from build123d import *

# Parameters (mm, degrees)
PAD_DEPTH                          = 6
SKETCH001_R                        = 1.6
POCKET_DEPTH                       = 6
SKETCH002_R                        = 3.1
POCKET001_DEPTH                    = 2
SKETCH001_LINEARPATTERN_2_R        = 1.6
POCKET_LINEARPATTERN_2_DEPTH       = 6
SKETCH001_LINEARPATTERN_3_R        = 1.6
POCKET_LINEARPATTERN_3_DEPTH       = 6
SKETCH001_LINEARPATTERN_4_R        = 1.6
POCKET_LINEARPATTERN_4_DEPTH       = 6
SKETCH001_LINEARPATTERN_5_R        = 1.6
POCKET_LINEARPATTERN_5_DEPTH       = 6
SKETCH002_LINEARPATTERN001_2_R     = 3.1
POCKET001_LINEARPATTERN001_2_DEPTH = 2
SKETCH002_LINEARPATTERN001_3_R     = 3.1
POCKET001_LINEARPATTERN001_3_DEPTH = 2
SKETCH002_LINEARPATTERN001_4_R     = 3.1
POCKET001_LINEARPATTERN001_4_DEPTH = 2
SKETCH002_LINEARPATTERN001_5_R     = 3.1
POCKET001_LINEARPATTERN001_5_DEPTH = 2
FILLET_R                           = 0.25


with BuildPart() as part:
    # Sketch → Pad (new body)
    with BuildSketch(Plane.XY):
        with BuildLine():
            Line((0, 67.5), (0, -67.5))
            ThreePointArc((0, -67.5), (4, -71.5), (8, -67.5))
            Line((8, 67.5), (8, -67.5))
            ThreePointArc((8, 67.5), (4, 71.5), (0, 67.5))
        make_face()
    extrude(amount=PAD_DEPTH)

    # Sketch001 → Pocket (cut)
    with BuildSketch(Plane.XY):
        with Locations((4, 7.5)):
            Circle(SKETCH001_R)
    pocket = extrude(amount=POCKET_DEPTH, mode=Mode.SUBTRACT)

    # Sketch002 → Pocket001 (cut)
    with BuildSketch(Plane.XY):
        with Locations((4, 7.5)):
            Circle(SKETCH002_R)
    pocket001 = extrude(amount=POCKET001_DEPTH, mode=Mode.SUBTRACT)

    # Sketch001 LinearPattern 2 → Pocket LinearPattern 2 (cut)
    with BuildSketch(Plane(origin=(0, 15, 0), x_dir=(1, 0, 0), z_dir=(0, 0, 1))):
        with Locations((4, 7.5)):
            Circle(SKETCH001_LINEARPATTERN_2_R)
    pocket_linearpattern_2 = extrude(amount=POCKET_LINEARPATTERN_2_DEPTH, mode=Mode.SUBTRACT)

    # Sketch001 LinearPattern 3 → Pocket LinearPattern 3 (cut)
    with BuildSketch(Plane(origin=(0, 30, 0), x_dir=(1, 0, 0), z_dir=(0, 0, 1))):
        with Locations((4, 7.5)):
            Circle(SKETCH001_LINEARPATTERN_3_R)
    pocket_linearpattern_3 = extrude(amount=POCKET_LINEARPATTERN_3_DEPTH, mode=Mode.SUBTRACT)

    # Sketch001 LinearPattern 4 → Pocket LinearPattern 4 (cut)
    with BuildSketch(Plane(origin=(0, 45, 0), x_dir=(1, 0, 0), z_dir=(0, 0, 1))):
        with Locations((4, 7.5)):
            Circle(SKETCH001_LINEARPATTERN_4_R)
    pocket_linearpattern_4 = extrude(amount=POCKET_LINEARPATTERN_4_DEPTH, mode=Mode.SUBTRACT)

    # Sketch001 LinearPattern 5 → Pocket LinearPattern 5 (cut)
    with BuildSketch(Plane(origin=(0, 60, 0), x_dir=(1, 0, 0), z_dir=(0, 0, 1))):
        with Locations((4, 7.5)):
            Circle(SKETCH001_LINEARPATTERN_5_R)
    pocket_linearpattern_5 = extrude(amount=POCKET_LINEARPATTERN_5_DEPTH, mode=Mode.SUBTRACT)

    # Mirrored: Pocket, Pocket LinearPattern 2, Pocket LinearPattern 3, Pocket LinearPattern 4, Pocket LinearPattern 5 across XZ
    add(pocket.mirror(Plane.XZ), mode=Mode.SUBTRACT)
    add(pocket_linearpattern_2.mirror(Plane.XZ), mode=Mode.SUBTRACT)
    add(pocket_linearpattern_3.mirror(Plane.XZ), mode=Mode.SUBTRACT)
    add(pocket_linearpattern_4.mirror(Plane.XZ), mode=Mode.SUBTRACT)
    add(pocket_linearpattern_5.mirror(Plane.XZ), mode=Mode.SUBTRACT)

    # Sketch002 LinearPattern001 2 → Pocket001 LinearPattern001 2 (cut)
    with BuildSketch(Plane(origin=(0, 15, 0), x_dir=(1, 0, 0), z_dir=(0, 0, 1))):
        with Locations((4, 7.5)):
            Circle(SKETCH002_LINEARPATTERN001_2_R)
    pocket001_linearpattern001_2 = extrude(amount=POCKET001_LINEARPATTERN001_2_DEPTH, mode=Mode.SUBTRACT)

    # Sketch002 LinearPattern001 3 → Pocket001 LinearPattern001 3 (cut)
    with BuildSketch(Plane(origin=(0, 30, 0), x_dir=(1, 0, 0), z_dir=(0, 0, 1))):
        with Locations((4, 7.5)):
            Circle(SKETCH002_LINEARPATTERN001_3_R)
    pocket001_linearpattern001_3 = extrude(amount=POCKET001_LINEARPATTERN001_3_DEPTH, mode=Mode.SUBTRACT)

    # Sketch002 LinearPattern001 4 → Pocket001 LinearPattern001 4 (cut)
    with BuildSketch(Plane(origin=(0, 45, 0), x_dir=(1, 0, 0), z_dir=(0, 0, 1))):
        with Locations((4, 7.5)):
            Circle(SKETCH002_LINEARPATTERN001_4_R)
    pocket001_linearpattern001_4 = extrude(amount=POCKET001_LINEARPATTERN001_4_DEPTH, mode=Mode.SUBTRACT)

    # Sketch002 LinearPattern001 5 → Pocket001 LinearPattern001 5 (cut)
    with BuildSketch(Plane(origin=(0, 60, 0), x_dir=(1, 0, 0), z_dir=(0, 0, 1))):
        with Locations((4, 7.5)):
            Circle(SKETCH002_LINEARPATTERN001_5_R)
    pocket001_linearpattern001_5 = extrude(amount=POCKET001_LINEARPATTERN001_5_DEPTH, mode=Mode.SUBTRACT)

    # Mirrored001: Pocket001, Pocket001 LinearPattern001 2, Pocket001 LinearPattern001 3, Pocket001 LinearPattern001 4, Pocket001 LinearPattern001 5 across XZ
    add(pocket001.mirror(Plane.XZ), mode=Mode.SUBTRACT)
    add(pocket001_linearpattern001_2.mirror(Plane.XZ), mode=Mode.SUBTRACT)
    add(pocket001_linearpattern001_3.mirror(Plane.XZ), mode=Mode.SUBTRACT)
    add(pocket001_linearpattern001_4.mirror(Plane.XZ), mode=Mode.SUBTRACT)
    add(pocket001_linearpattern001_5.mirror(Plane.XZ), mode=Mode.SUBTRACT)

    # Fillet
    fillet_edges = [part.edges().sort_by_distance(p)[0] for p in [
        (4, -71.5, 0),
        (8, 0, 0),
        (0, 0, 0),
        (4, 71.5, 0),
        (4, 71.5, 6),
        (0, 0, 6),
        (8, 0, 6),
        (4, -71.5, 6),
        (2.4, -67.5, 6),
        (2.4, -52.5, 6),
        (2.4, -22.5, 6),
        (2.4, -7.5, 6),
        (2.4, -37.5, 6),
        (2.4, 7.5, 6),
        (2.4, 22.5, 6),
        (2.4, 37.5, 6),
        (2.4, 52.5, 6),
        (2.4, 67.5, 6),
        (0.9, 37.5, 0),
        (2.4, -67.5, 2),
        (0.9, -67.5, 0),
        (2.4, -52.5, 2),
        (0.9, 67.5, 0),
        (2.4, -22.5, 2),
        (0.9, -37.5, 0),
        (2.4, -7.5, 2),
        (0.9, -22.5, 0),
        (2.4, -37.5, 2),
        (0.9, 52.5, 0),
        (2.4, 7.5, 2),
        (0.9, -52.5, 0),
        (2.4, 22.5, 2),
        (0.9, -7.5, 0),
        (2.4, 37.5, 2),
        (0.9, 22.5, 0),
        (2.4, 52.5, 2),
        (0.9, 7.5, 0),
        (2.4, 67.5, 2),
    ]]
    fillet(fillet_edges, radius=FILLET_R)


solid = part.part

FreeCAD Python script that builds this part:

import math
import FreeCAD as App
import Part
import Sketcher
from FreeCAD import Vector
Q = App.Units.Quantity


def edges_at(feature, points):
    """Names of the edges that pass closest to the given points."""
    edges = feature.Shape.Edges
    near = lambda p: min(range(len(edges)), key=lambda i: edges[i].distToShape(Part.Vertex(*p))[0])
    return sorted({f"Edge{near(p) + 1}" for p in points})

doc = App.newDocument("Part")
body = doc.addObject("PartDesign::Body", "Body")

# Sketch on XY plane
sketch1 = body.newObject("Sketcher::SketchObject", "Sketch")
sketch1.AttachmentSupport = (doc.getObject("XY_Plane"), [""])
sketch1.MapMode = "FlatFace"
sketch1.addGeometry(Part.LineSegment(Vector(0, 67.5, 0), Vector(0, -67.5, 0)), False)
sketch1.addGeometry(Part.ArcOfCircle(Part.Circle(Vector(4, -67.5, 0), Vector(0, 0, 1), 4), math.radians(180), math.radians(360)), False)
sketch1.addGeometry(Part.LineSegment(Vector(8, -67.5, 0), Vector(8, 67.5, 0)), False)
sketch1.addGeometry(Part.ArcOfCircle(Part.Circle(Vector(4, 67.5, 0), Vector(0, 0, 1), 4), math.radians(0), math.radians(180)), False)
sketch1.addConstraint(Sketcher.Constraint("Tangent", 0, 2, 1, 1))
sketch1.addConstraint(Sketcher.Constraint("Tangent", 1, 2, 2, 1))
sketch1.addConstraint(Sketcher.Constraint("Tangent", 2, 2, 3, 1))
sketch1.addConstraint(Sketcher.Constraint("Tangent", 3, 2, 0, 1))
sketch1.addConstraint(Sketcher.Constraint("Vertical", 0))
sketch1.addConstraint(Sketcher.Constraint("Vertical", 2))
sketch1.addConstraint(Sketcher.Constraint("Symmetric", 0, 2, 3, 2, -1, 1))
sketch1.addConstraint(Sketcher.Constraint("Radius", 1, Q("4 mm")))
sketch1.addConstraint(Sketcher.Constraint("DistanceY", 0, 2, 0, 1, Q("135 mm")))
pad1 = body.newObject("PartDesign::Pad", "Pad")
pad1.Profile = sketch1
pad1.Length = 6

# Sketch on XY plane
sketch2 = body.newObject("Sketcher::SketchObject", "Sketch001")
sketch2.AttachmentSupport = (doc.getObject("XY_Plane"), [""])
sketch2.MapMode = "FlatFace"
sketch2.addGeometry(Part.Circle(Vector(4, 7.5, 0), Vector(0, 0, 1), 1.6), False)
sketch2.addConstraint(Sketcher.Constraint("Diameter", 0, Q("3.2 mm")))
sketch2.addConstraint(Sketcher.Constraint("DistanceX", -1, 1, 0, 3, Q("4 mm")))
sketch2.addConstraint(Sketcher.Constraint("DistanceY", -1, 1, 0, 3, Q("7.5 mm")))
pocket1 = body.newObject("PartDesign::Pocket", "Pocket")
pocket1.Profile = sketch2
pocket1.Length = 6
pocket1.Reversed = True

# Sketch on XY plane
sketch3 = body.newObject("Sketcher::SketchObject", "Sketch002")
sketch3.AttachmentSupport = (doc.getObject("XY_Plane"), [""])
sketch3.MapMode = "FlatFace"
sketch3.addGeometry(Part.Circle(Vector(4, 7.5, 0), Vector(0, 0, 1), 3.1), False)
sketch3.addConstraint(Sketcher.Constraint("Diameter", 0, Q("6.2 mm")))
sketch3.addConstraint(Sketcher.Constraint("DistanceX", -1, 1, 0, 3, Q("4 mm")))
sketch3.addConstraint(Sketcher.Constraint("DistanceY", -1, 1, 0, 3, Q("7.5 mm")))
pocket2 = body.newObject("PartDesign::Pocket", "Pocket001")
pocket2.Profile = sketch3
pocket2.Length = 2
pocket2.Reversed = True

# Sketch on XY plane
sketch4 = body.newObject("Sketcher::SketchObject", "Sketch003")
sketch4.AttachmentSupport = (doc.getObject("XY_Plane"), [""])
sketch4.MapMode = "FlatFace"
sketch4.addGeometry(Part.Circle(Vector(4, 22.5, 0), Vector(0, 0, 1), 1.6), False)
sketch4.addConstraint(Sketcher.Constraint("Diameter", 0, Q("3.2 mm")))
sketch4.addConstraint(Sketcher.Constraint("DistanceX", -1, 1, 0, 3, Q("4 mm")))
sketch4.addConstraint(Sketcher.Constraint("DistanceY", -1, 1, 0, 3, Q("22.5 mm")))
pocket3 = body.newObject("PartDesign::Pocket", "Pocket002")
pocket3.Profile = sketch4
pocket3.Length = 6
pocket3.Reversed = True

# Sketch on XY plane
sketch5 = body.newObject("Sketcher::SketchObject", "Sketch004")
sketch5.AttachmentSupport = (doc.getObject("XY_Plane"), [""])
sketch5.MapMode = "FlatFace"
sketch5.addGeometry(Part.Circle(Vector(4, 37.5, 0), Vector(0, 0, 1), 1.6), False)
sketch5.addConstraint(Sketcher.Constraint("Diameter", 0, Q("3.2 mm")))
sketch5.addConstraint(Sketcher.Constraint("DistanceX", -1, 1, 0, 3, Q("4 mm")))
sketch5.addConstraint(Sketcher.Constraint("DistanceY", -1, 1, 0, 3, Q("37.5 mm")))
pocket4 = body.newObject("PartDesign::Pocket", "Pocket003")
pocket4.Profile = sketch5
pocket4.Length = 6
pocket4.Reversed = True

# Sketch on XY plane
sketch6 = body.newObject("Sketcher::SketchObject", "Sketch005")
sketch6.AttachmentSupport = (doc.getObject("XY_Plane"), [""])
sketch6.MapMode = "FlatFace"
sketch6.addGeometry(Part.Circle(Vector(4, 52.5, 0), Vector(0, 0, 1), 1.6), False)
sketch6.addConstraint(Sketcher.Constraint("Diameter", 0, Q("3.2 mm")))
sketch6.addConstraint(Sketcher.Constraint("DistanceX", -1, 1, 0, 3, Q("4 mm")))
sketch6.addConstraint(Sketcher.Constraint("DistanceY", -1, 1, 0, 3, Q("52.5 mm")))
pocket5 = body.newObject("PartDesign::Pocket", "Pocket004")
pocket5.Profile = sketch6
pocket5.Length = 6
pocket5.Reversed = True

# Sketch on XY plane
sketch7 = body.newObject("Sketcher::SketchObject", "Sketch006")
sketch7.AttachmentSupport = (doc.getObject("XY_Plane"), [""])
sketch7.MapMode = "FlatFace"
sketch7.addGeometry(Part.Circle(Vector(4, 67.5, 0), Vector(0, 0, 1), 1.6), False)
sketch7.addConstraint(Sketcher.Constraint("Diameter", 0, Q("3.2 mm")))
sketch7.addConstraint(Sketcher.Constraint("DistanceX", -1, 1, 0, 3, Q("4 mm")))
sketch7.addConstraint(Sketcher.Constraint("DistanceY", -1, 1, 0, 3, Q("67.5 mm")))
pocket6 = body.newObject("PartDesign::Pocket", "Pocket005")
pocket6.Profile = sketch7
pocket6.Length = 6
pocket6.Reversed = True
doc.recompute()

mirrored = body.newObject("PartDesign::Mirrored", "Mirrored")
mirrored.Originals = [pocket1, pocket3, pocket4, pocket5, pocket6]
mirrored.MirrorPlane = (doc.getObject("XZ_Plane"), [""])
body.Tip = mirrored

# Sketch on XY plane
sketch8 = body.newObject("Sketcher::SketchObject", "Sketch007")
sketch8.AttachmentSupport = (doc.getObject("XY_Plane"), [""])
sketch8.MapMode = "FlatFace"
sketch8.addGeometry(Part.Circle(Vector(4, 22.5, 0), Vector(0, 0, 1), 3.1), False)
sketch8.addConstraint(Sketcher.Constraint("Diameter", 0, Q("6.2 mm")))
sketch8.addConstraint(Sketcher.Constraint("DistanceX", -1, 1, 0, 3, Q("4 mm")))
sketch8.addConstraint(Sketcher.Constraint("DistanceY", -1, 1, 0, 3, Q("22.5 mm")))
pocket7 = body.newObject("PartDesign::Pocket", "Pocket006")
pocket7.Profile = sketch8
pocket7.Length = 2
pocket7.Reversed = True

# Sketch on XY plane
sketch9 = body.newObject("Sketcher::SketchObject", "Sketch008")
sketch9.AttachmentSupport = (doc.getObject("XY_Plane"), [""])
sketch9.MapMode = "FlatFace"
sketch9.addGeometry(Part.Circle(Vector(4, 37.5, 0), Vector(0, 0, 1), 3.1), False)
sketch9.addConstraint(Sketcher.Constraint("Diameter", 0, Q("6.2 mm")))
sketch9.addConstraint(Sketcher.Constraint("DistanceX", -1, 1, 0, 3, Q("4 mm")))
sketch9.addConstraint(Sketcher.Constraint("DistanceY", -1, 1, 0, 3, Q("37.5 mm")))
pocket8 = body.newObject("PartDesign::Pocket", "Pocket007")
pocket8.Profile = sketch9
pocket8.Length = 2
pocket8.Reversed = True

# Sketch on XY plane
sketch10 = body.newObject("Sketcher::SketchObject", "Sketch009")
sketch10.AttachmentSupport = (doc.getObject("XY_Plane"), [""])
sketch10.MapMode = "FlatFace"
sketch10.addGeometry(Part.Circle(Vector(4, 52.5, 0), Vector(0, 0, 1), 3.1), False)
sketch10.addConstraint(Sketcher.Constraint("Diameter", 0, Q("6.2 mm")))
sketch10.addConstraint(Sketcher.Constraint("DistanceX", -1, 1, 0, 3, Q("4 mm")))
sketch10.addConstraint(Sketcher.Constraint("DistanceY", -1, 1, 0, 3, Q("52.5 mm")))
pocket9 = body.newObject("PartDesign::Pocket", "Pocket008")
pocket9.Profile = sketch10
pocket9.Length = 2
pocket9.Reversed = True

# Sketch on XY plane
sketch11 = body.newObject("Sketcher::SketchObject", "Sketch010")
sketch11.AttachmentSupport = (doc.getObject("XY_Plane"), [""])
sketch11.MapMode = "FlatFace"
sketch11.addGeometry(Part.Circle(Vector(4, 67.5, 0), Vector(0, 0, 1), 3.1), False)
sketch11.addConstraint(Sketcher.Constraint("Diameter", 0, Q("6.2 mm")))
sketch11.addConstraint(Sketcher.Constraint("DistanceX", -1, 1, 0, 3, Q("4 mm")))
sketch11.addConstraint(Sketcher.Constraint("DistanceY", -1, 1, 0, 3, Q("67.5 mm")))
pocket10 = body.newObject("PartDesign::Pocket", "Pocket009")
pocket10.Profile = sketch11
pocket10.Length = 2
pocket10.Reversed = True
doc.recompute()

mirrored2 = body.newObject("PartDesign::Mirrored", "Mirrored001")
mirrored2.Originals = [pocket2, pocket7, pocket8, pocket9, pocket10]
mirrored2.MirrorPlane = (doc.getObject("XZ_Plane"), [""])
body.Tip = mirrored2
doc.recompute()

fillet = body.newObject("PartDesign::Fillet", "Fillet")
fillet.Base = (mirrored2, edges_at(mirrored2, [
    (4, -71.5, 0),
    (8, 0, 0),
    (0, 0, 0),
    (4, 71.5, 0),
    (4, 71.5, 6),
    (0, 0, 6),
    (8, 0, 6),
    (4, -71.5, 6),
    (2.4, -67.5, 6),
    (2.4, -52.5, 6),
    (2.4, -22.5, 6),
    (2.4, -7.5, 6),
    (2.4, -37.5, 6),
    (2.4, 7.5, 6),
    (2.4, 22.5, 6),
    (2.4, 37.5, 6),
    (2.4, 52.5, 6),
    (2.4, 67.5, 6),
    (0.9, 37.5, 0),
    (2.4, -67.5, 2),
    (0.9, -67.5, 0),
    (2.4, -52.5, 2),
    (0.9, 67.5, 0),
    (2.4, -22.5, 2),
    (0.9, -37.5, 0),
    (2.4, -7.5, 2),
    (0.9, -22.5, 0),
    (2.4, -37.5, 2),
    (0.9, 52.5, 0),
    (2.4, 7.5, 2),
    (0.9, -52.5, 0),
    (2.4, 22.5, 2),
    (0.9, -7.5, 0),
    (2.4, 37.5, 2),
    (0.9, 22.5, 0),
    (2.4, 52.5, 2),
    (0.9, 7.5, 0),
    (2.4, 67.5, 2),
]))
fillet.Radius = 0.25

doc.recompute()
